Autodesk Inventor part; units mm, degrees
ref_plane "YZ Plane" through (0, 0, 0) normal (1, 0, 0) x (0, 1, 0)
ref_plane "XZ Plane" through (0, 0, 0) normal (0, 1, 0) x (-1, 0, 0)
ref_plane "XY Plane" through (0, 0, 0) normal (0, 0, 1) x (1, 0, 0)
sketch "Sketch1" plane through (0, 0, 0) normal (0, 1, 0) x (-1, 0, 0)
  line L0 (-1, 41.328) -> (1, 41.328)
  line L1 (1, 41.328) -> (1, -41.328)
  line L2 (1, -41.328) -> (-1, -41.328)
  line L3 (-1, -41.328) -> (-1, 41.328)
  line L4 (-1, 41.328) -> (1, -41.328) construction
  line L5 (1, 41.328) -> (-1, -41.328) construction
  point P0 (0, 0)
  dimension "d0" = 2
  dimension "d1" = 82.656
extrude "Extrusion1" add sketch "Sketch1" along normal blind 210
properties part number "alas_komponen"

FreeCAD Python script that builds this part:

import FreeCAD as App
import Part
import Sketcher

V = App.Vector
Q = App.Units.Quantity


def add_polygon(sketch, points):
    """Adds a closed chain of lines whose ends are joined by coincident constraints."""
    first, n = sketch.GeometryCount, len(points)
    for a, b in zip(points, points[1:] + points[:1]):
        sketch.addGeometry(Part.LineSegment(App.Vector(*a, 0), App.Vector(*b, 0)), False)
    for i in range(n):
        sketch.addConstraint(Sketcher.Constraint("Coincident", first + i, 2, first + (i + 1) % n, 1))

doc = App.newDocument("Part")
body = doc.addObject("PartDesign::Body", "Body")

# Sketch on XZ plane
sketch1 = body.newObject("Sketcher::SketchObject", "Sketch")
sketch1.AttachmentSupport = (doc.getObject("XZ_Plane"), [""])
sketch1.MapMode = "FlatFace"
add_polygon(sketch1, [(-1, 41.3), (1, 41.3), (1, -41.3), (-1, -41.3)])  # lines 0-3
sketch1.addConstraint([
    Sketcher.Constraint("Horizontal", 0),
    Sketcher.Constraint("Vertical", 1),
    Sketcher.Constraint("Horizontal", 2),
    Sketcher.Constraint("Vertical", 3),
    Sketcher.Constraint("Symmetric", 0, 2, 2, 2, -1, 1),
    Sketcher.Constraint("DistanceX", 0, 1, 0, 2, Q("2 mm")),
    Sketcher.Constraint("DistanceY", 1, 2, 1, 1, Q("82.656 mm")),
])
pad1 = body.newObject("PartDesign::Pad", "Pad")
pad1.Profile = sketch1
pad1.Length = 210
pad1.Reversed = True

doc.recompute()
